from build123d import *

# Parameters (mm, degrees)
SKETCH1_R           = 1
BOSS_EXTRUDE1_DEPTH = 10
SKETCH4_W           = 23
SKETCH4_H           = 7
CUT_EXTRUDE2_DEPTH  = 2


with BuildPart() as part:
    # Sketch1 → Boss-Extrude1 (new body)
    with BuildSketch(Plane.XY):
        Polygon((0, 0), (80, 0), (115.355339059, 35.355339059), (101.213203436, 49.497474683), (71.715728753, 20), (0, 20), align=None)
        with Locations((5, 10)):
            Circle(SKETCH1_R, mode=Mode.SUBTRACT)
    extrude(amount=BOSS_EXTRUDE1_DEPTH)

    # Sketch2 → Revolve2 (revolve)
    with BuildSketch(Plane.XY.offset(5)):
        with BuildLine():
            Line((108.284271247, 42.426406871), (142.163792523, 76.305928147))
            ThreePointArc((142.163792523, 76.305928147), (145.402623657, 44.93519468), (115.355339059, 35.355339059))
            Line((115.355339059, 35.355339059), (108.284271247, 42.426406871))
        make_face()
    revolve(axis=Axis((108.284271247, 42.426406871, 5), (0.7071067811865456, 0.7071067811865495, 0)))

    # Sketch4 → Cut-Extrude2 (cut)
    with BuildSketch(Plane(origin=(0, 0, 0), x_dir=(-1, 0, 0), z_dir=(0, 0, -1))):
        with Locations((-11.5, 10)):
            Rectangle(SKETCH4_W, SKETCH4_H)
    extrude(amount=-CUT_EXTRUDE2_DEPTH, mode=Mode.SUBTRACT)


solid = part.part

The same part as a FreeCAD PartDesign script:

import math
import FreeCAD as App
import Part
import Sketcher

V = App.Vector
Q = App.Units.Quantity

doc = App.newDocument("Part")
body = doc.addObject("PartDesign::Body", "Body")

# Sketch on XY plane
sketch1 = body.newObject("Sketcher::SketchObject", "Sketch")
sketch1.AttachmentSupport = (doc.getObject("XY_Plane"), [""])
sketch1.MapMode = "FlatFace"
sketch1.addGeometry([
    Part.LineSegment(V(0, 0, 0), V(80, 0, 0)),  # 0
    Part.LineSegment(V(80, 0, 0), V(115.4, 35.4, 0)),  # 1
    Part.LineSegment(V(115.4, 35.4, 0), V(101.2, 49.5, 0)),  # 2
    Part.LineSegment(V(101.2, 49.5, 0), V(71.7, 20, 0)),  # 3
    Part.LineSegment(V(71.7, 20, 0), V(0, 20, 0)),  # 4
    Part.LineSegment(V(0, 20, 0), V(0, 0, 0)),  # 5
    Part.Circle(V(5, 10, 0), V(0, 0, 1), 1),  # 6
], False)
sketch1.addConstraint([
    Sketcher.Constraint("Coincident", 0, 2, 1, 1),
    Sketcher.Constraint("Coincident", 1, 2, 2, 1),
    Sketcher.Constraint("Coincident", 2, 2, 3, 1),
    Sketcher.Constraint("Coincident", 3, 2, 4, 1),
    Sketcher.Constraint("Coincident", 4, 2, 5, 1),
    Sketcher.Constraint("Coincident", 5, 2, 0, 1),
    Sketcher.Constraint("Horizontal", 0),
    Sketcher.Constraint("Horizontal", 4),
    Sketcher.Constraint("Vertical", 5),
    Sketcher.Constraint("Coincident", 5, 2, -1, 1),
    Sketcher.Constraint("Perpendicular", 1, 2),
    Sketcher.Constraint("Perpendicular", 2, 3),
    Sketcher.Constraint("Diameter", 6, Q("2 mm")),
    Sketcher.Constraint("DistanceX", 0, 1, 0, 2, Q("80 mm")),
    Sketcher.Constraint("DistanceY", 5, 2, 5, 1, Q("20 mm")),
    Sketcher.Constraint("Angle", 1, Q("45 deg")),
    Sketcher.Constraint("Distance", 1, Q("50 mm")),
    Sketcher.Constraint("Distance", 2, Q("20 mm")),
    Sketcher.Constraint("DistanceX", -1, 1, 6, 3, Q("5 mm")),
    Sketcher.Constraint("DistanceY", -1, 1, 6, 3, Q("10 mm")),
])
pad1 = body.newObject("PartDesign::Pad", "Pad")
pad1.Profile = sketch1
pad1.Length = 10

# Sketch on XY plane
sketch2 = body.newObject("Sketcher::SketchObject", "Sketch001")
sketch2.AttachmentSupport = (doc.getObject("XY_Plane"), [""])
sketch2.MapMode = "FlatFace"
sketch2.AttachmentOffset = App.Placement(V(0, 0, 5), App.Rotation())
sketch2.addGeometry([
    Part.LineSegment(V(142, 76, 0), V(108, 42, 0)),
    Part.LineSegment(V(108, 42, 0), V(115, 35, 0)),
    Part.ArcOfCircle(Part.Circle(V(124, 59, 0), V(0, 0, 1), 25), math.radians(-111), math.radians(45)),
], False)
sketch2.addGeometry(Part.LineSegment(V(108, 42, 0), V(142, 76, 0)), True)  # axis
sketch2.addConstraint([
    Sketcher.Constraint("Coincident", 0, 2, 1, 1),
    Sketcher.Constraint("Coincident", 1, 2, 2, 1),
    Sketcher.Constraint("Coincident", 2, 2, 0, 1),
    Sketcher.Constraint("Coincident", 3, 1, 0, 2),
    Sketcher.Constraint("Coincident", 3, 2, 2, 2),
    Sketcher.Constraint("Perpendicular", 0, 1),
    Sketcher.Constraint("Radius", 2, Q("25 mm")),
    Sketcher.Constraint("Angle", 0, Q("-135 deg")),
    Sketcher.Constraint("Distance", 1, Q("10 mm")),
    Sketcher.Constraint("Distance", 0, Q("47.912878 mm")),
    Sketcher.Constraint("DistanceY", -1, 1, 2, 3, Q("58.628259 mm")),
    Sketcher.Constraint("DistanceX", -1, 1, 0, 2, Q("108.284271 mm")),
])
revolution = body.newObject("PartDesign::Revolution", "Revolution")
revolution.Profile = sketch2
revolution.ReferenceAxis = (sketch2, ["Axis0"])
revolution.Angle = 360

# Sketch on XY plane
sketch3 = body.newObject("Sketcher::SketchObject", "Sketch002")
sketch3.AttachmentSupport = (doc.getObject("XY_Plane"), [""])
sketch3.MapMode = "FlatFace"
sketch3.addGeometry([
    Part.LineSegment(V(23, 14, 0), V(23, 6, 0)),
    Part.LineSegment(V(23, 6, 0), V(0, 6, 0)),
    Part.LineSegment(V(0, 6, 0), V(0, 14, 0)),
    Part.LineSegment(V(0, 14, 0), V(23, 14, 0)),
], False)
sketch3.addConstraint([
    Sketcher.Constraint("Coincident", 0, 2, 1, 1),
    Sketcher.Constraint("Coincident", 1, 2, 2, 1),
    Sketcher.Constraint("Coincident", 2, 2, 3, 1),
    Sketcher.Constraint("Coincident", 3, 2, 0, 1),
    Sketcher.Constraint("Vertical", 0),
    Sketcher.Constraint("Horizontal", 1),
    Sketcher.Constraint("Vertical", 2),
    Sketcher.Constraint("Horizontal", 3),
    Sketcher.Constraint("PointOnObject", 1, 2, -2),
    Sketcher.Constraint("DistanceX", 1, 2, 1, 1, Q("23 mm")),
    Sketcher.Constraint("DistanceY", 0, 2, 0, 1, Q("7 mm")),
    Sketcher.Constraint("DistanceY", -1, 1, 0, 2, Q("6.5 mm")),
])
pocket1 = body.newObject("PartDesign::Pocket", "Pocket")
pocket1.Profile = sketch3
pocket1.Length = 2
pocket1.Reversed = True

doc.recompute()
